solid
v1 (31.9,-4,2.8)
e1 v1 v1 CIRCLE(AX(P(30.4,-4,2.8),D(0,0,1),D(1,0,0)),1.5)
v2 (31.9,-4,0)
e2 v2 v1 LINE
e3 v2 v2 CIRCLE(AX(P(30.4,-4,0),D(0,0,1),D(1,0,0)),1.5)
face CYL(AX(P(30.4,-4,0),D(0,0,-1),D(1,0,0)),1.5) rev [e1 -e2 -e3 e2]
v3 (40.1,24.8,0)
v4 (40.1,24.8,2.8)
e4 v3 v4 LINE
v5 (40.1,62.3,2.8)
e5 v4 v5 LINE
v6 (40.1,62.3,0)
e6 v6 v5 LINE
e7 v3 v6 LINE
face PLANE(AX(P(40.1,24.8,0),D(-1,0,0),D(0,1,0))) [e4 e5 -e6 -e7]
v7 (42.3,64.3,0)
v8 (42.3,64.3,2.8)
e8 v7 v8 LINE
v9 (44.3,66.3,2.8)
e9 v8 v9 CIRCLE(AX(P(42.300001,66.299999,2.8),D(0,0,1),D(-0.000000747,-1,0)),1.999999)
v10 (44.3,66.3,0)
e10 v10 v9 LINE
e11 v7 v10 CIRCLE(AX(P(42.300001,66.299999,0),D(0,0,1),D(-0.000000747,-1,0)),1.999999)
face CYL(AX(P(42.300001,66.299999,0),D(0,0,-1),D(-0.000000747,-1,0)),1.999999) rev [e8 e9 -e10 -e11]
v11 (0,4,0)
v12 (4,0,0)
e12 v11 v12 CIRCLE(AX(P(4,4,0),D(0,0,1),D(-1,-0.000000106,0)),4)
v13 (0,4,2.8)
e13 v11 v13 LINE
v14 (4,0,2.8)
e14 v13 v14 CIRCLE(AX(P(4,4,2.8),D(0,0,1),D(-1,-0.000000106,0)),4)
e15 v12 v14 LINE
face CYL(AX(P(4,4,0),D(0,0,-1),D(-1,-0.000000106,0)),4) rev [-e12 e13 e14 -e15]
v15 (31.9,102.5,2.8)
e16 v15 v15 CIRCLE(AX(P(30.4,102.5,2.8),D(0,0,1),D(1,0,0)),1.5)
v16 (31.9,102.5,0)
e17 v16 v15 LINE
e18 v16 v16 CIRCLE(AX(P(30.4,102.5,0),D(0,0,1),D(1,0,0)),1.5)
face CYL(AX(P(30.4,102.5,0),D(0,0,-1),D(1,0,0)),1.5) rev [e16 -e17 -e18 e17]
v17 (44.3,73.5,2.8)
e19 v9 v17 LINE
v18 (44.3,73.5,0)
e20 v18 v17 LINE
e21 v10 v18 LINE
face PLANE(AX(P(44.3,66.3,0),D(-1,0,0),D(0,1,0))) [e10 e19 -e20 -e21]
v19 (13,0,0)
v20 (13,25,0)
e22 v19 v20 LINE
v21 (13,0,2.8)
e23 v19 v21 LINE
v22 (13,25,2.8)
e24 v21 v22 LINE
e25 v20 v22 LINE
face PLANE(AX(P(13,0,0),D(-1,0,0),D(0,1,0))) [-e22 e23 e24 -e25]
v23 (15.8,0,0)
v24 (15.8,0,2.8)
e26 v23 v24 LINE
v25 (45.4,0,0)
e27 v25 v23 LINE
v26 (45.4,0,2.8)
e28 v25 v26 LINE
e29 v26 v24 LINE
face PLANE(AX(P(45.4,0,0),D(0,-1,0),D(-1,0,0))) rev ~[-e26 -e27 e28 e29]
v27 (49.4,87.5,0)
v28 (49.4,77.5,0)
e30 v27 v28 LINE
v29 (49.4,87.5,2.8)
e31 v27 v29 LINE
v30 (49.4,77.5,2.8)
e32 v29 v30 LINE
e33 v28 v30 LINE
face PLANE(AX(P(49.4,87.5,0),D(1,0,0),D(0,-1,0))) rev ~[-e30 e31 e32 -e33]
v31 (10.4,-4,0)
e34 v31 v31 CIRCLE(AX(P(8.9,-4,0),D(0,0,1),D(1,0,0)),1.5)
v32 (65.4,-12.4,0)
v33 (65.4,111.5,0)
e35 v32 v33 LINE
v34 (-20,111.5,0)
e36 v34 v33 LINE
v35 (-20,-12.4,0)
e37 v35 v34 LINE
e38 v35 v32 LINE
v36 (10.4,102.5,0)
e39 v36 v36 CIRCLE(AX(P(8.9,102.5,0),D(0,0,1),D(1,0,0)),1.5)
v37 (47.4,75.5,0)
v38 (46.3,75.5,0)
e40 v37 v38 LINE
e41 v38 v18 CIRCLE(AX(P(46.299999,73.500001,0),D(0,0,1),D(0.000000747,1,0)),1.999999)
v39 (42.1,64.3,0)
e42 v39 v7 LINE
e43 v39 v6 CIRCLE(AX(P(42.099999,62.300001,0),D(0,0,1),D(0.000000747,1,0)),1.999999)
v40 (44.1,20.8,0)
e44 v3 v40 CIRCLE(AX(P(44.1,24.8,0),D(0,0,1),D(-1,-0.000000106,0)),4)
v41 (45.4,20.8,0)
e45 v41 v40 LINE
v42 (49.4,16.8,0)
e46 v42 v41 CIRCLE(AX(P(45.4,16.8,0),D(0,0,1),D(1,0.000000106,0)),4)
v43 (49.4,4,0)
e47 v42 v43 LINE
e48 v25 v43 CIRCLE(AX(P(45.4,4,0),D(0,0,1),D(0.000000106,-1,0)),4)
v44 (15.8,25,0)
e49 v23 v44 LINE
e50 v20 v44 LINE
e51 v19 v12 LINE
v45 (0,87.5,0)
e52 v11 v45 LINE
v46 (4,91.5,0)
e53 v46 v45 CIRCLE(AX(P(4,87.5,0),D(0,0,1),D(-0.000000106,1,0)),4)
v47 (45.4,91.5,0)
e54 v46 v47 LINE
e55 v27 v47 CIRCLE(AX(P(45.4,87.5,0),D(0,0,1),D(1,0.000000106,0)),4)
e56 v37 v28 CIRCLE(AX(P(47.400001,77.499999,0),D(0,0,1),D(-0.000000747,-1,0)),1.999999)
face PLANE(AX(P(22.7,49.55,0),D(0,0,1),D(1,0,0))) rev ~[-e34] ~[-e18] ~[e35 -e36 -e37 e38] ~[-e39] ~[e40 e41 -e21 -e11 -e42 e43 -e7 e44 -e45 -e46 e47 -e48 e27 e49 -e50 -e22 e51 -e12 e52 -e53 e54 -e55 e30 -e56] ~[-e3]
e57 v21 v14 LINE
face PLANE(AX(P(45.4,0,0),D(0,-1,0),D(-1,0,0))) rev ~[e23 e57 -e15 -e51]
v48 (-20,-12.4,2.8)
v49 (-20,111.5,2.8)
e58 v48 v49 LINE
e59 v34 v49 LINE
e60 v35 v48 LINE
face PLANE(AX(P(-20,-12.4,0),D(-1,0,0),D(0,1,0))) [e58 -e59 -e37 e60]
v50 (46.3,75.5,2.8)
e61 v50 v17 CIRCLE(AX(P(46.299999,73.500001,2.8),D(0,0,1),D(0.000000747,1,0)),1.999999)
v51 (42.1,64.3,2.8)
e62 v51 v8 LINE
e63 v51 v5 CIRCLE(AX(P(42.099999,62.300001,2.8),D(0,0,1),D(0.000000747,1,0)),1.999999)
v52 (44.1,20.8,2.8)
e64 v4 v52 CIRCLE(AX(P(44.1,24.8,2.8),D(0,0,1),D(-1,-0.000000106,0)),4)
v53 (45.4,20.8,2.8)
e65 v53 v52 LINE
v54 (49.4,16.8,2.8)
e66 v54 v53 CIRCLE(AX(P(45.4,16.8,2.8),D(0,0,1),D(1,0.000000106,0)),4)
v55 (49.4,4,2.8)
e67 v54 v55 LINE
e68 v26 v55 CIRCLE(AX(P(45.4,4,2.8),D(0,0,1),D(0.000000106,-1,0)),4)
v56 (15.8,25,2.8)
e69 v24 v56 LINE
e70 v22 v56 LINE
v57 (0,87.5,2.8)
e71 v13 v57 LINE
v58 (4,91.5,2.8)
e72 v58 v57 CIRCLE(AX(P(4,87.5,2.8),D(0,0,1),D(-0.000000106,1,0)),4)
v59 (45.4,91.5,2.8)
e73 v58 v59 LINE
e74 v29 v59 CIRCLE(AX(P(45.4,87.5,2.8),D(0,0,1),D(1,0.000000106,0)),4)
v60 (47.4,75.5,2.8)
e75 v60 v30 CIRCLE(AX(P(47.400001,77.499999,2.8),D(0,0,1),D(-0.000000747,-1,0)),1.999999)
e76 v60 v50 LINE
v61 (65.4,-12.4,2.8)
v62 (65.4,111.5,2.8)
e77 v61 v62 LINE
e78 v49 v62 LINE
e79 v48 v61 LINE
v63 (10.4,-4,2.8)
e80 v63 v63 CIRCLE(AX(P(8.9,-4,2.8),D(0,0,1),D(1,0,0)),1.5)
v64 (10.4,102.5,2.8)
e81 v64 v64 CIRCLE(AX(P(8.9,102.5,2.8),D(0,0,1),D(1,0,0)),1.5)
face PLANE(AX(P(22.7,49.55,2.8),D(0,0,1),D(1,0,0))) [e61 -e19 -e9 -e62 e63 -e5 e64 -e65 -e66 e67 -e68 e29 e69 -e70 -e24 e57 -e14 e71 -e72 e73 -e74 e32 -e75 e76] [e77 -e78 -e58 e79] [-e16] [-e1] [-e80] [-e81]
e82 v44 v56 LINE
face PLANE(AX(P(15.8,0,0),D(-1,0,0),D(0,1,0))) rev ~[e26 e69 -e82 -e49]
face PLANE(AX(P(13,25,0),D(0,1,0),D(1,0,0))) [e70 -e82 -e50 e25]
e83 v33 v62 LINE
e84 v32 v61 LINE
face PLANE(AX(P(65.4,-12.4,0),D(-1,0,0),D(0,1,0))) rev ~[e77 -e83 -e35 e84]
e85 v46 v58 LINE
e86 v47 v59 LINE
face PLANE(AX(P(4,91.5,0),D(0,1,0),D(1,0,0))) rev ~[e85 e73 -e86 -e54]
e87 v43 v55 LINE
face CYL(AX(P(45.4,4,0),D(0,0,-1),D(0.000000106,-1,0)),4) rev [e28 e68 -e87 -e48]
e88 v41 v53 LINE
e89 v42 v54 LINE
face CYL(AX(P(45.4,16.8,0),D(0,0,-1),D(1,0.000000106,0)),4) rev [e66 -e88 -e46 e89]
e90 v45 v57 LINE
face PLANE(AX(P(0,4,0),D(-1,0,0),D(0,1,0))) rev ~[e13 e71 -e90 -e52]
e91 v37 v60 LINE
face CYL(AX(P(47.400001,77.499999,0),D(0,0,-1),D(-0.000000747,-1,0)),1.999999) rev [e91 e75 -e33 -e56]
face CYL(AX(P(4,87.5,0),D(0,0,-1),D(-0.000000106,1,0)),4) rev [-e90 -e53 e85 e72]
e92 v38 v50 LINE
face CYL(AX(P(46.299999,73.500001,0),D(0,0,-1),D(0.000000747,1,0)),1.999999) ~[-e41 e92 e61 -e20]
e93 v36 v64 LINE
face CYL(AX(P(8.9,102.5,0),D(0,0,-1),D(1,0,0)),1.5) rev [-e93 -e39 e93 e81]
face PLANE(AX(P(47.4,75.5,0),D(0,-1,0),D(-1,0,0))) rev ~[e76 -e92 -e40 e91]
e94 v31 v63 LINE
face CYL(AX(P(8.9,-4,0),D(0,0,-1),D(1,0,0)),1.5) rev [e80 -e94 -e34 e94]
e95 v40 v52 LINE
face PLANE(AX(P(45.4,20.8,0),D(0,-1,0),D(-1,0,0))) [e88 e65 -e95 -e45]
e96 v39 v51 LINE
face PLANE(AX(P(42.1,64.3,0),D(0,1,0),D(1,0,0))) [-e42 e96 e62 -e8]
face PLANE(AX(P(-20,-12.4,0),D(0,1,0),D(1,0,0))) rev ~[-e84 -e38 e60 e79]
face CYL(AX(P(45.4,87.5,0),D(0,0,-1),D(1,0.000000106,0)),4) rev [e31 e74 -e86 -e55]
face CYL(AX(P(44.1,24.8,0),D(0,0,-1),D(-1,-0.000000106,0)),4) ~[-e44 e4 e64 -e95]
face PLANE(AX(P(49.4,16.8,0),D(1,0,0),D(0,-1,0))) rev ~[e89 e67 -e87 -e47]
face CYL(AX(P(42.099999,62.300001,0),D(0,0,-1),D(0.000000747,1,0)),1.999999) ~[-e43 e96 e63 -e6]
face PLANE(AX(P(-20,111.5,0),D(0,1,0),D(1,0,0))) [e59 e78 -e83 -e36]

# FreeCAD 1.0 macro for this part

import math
import FreeCAD as App
import Part
import Sketcher

V = App.Vector
Q = App.Units.Quantity


def add_polygon(sketch, points):
    """Adds a closed chain of lines whose ends are joined by coincident constraints."""
    first, n = sketch.GeometryCount, len(points)
    for a, b in zip(points, points[1:] + points[:1]):
        sketch.addGeometry(Part.LineSegment(App.Vector(*a, 0), App.Vector(*b, 0)), False)
    for i in range(n):
        sketch.addConstraint(Sketcher.Constraint("Coincident", first + i, 2, first + (i + 1) % n, 1))

doc = App.newDocument("Part")
body = doc.addObject("PartDesign::Body", "Body")

sketch1 = body.newObject("Sketcher::SketchObject", "Sketch")
sketch1.AttachmentSupport = (doc.getObject("XY_Plane"), [""])
sketch1.MapMode = "FlatFace"
add_polygon(sketch1, [(-20, 111.5), (-20, -12.4), (65.4, -12.4), (65.4, 111.5)])
sketch1.addGeometry(Part.Circle(V(8.9, -4, 0), V(0, 0, 1), 1.5), False)
sketch1.addGeometry(Part.Circle(V(30.4, -4, 0), V(0, 0, 1), 1.5), False)
sketch1.addGeometry(Part.ArcOfCircle(Part.Circle(V(4, 87.5, 0), V(0, 0, 1), 4), math.radians(90), math.radians(180)), False)
sketch1.addGeometry(Part.LineSegment(V(4, 91.5, 0), V(45.4, 91.5, 0)), False)
sketch1.addGeometry(Part.ArcOfCircle(Part.Circle(V(45.4, 87.5, 0), V(0, 0, 1), 4), math.radians(0), math.radians(90)), False)
sketch1.addGeometry(Part.LineSegment(V(49.4, 87.5, 0), V(49.4, 77.5, 0)), False)
sketch1.addGeometry(Part.ArcOfCircle(Part.Circle(V(47.4, 77.5, 0), V(0, 0, 1), 2), math.radians(-90), math.radians(0)), False)
sketch1.addGeometry(Part.LineSegment(V(47.4, 75.5, 0), V(46.3, 75.5, 0)), False)
sketch1.addGeometry(Part.ArcOfCircle(Part.Circle(V(46.3, 73.5, 0), V(0, 0, 1), 2), math.radians(90), math.radians(180)), False)
sketch1.addGeometry(Part.LineSegment(V(44.3, 73.5, 0), V(44.3, 66.3, 0)), False)
sketch1.addGeometry(Part.ArcOfCircle(Part.Circle(V(42.3, 66.3, 0), V(0, 0, 1), 2), math.radians(-90), math.radians(0)), False)
sketch1.addGeometry(Part.LineSegment(V(42.3, 64.3, 0), V(42.1, 64.3, 0)), False)
sketch1.addGeometry(Part.ArcOfCircle(Part.Circle(V(42.1, 62.3, 0), V(0, 0, 1), 2), math.radians(90), math.radians(180)), False)
sketch1.addGeometry(Part.LineSegment(V(40.1, 62.3, 0), V(40.1, 24.8, 0)), False)
sketch1.addGeometry(Part.ArcOfCircle(Part.Circle(V(44.1, 24.8, 0), V(0, 0, 1), 4), math.radians(-180), math.radians(-90)), False)
sketch1.addGeometry(Part.LineSegment(V(44.1, 20.8, 0), V(45.4, 20.8, 0)), False)
sketch1.addGeometry(Part.ArcOfCircle(Part.Circle(V(45.4, 16.8, 0), V(0, 0, 1), 4), math.radians(0), math.radians(90)), False)
sketch1.addGeometry(Part.LineSegment(V(49.4, 16.8, 0), V(49.4, 4, 0)), False)
sketch1.addGeometry(Part.ArcOfCircle(Part.Circle(V(45.4, 4, 0), V(0, 0, 1), 4), math.radians(-90), math.radians(0)), False)
sketch1.addGeometry(Part.LineSegment(V(45.4, 0, 0), V(4, 0, 0)), False)
sketch1.addGeometry(Part.ArcOfCircle(Part.Circle(V(4, 4, 0), V(0, 0, 1), 4), math.radians(-180), math.radians(-90)), False)
sketch1.addGeometry(Part.LineSegment(V(0, 4, 0), V(0, 87.5, 0)), False)
sketch1.addGeometry(Part.Circle(V(8.9, 102.5, 0), V(0, 0, 1), 1.5), False)
sketch1.addGeometry(Part.Circle(V(30.4, 102.5, 0), V(0, 0, 1), 1.5), False)
sketch1.addConstraint(Sketcher.Constraint("Tangent", 6, 1, 7, 1))
sketch1.addConstraint(Sketcher.Constraint("Tangent", 7, 2, 8, 2))
sketch1.addConstraint(Sketcher.Constraint("Tangent", 8, 1, 9, 1))
sketch1.addConstraint(Sketcher.Constraint("Tangent", 9, 2, 10, 2))
sketch1.addConstraint(Sketcher.Constraint("Tangent", 10, 1, 11, 1))
sketch1.addConstraint(Sketcher.Constraint("Tangent", 11, 2, 12, 1))
sketch1.addConstraint(Sketcher.Constraint("Tangent", 12, 2, 13, 1))
sketch1.addConstraint(Sketcher.Constraint("Tangent", 13, 2, 14, 2))
sketch1.addConstraint(Sketcher.Constraint("Tangent", 14, 1, 15, 1))
sketch1.addConstraint(Sketcher.Constraint("Tangent", 15, 2, 16, 1))
sketch1.addConstraint(Sketcher.Constraint("Tangent", 16, 2, 17, 1))
sketch1.addConstraint(Sketcher.Constraint("Tangent", 17, 2, 18, 1))
sketch1.addConstraint(Sketcher.Constraint("Tangent", 18, 2, 19, 1))
sketch1.addConstraint(Sketcher.Constraint("Tangent", 19, 2, 20, 2))
sketch1.addConstraint(Sketcher.Constraint("Tangent", 20, 1, 21, 1))
sketch1.addConstraint(Sketcher.Constraint("Tangent", 21, 2, 22, 2))
sketch1.addConstraint(Sketcher.Constraint("Tangent", 22, 1, 23, 1))
sketch1.addConstraint(Sketcher.Constraint("Tangent", 23, 2, 24, 2))
sketch1.addConstraint(Sketcher.Constraint("Tangent", 24, 1, 25, 1))
sketch1.addConstraint(Sketcher.Constraint("Tangent", 25, 2, 6, 2))
sketch1.addConstraint(Sketcher.Constraint("Vertical", 0))
sketch1.addConstraint(Sketcher.Constraint("Horizontal", 1))
sketch1.addConstraint(Sketcher.Constraint("Vertical", 2))
sketch1.addConstraint(Sketcher.Constraint("Horizontal", 3))
sketch1.addConstraint(Sketcher.Constraint("Horizontal", 7))
sketch1.addConstraint(Sketcher.Constraint("Vertical", 9))
sketch1.addConstraint(Sketcher.Constraint("Horizontal", 11))
sketch1.addConstraint(Sketcher.Constraint("Vertical", 13))
sketch1.addConstraint(Sketcher.Constraint("Horizontal", 15))
sketch1.addConstraint(Sketcher.Constraint("Vertical", 17))
sketch1.addConstraint(Sketcher.Constraint("Horizontal", 19))
sketch1.addConstraint(Sketcher.Constraint("Vertical", 21))
sketch1.addConstraint(Sketcher.Constraint("Horizontal", 23))
sketch1.addConstraint(Sketcher.Constraint("Vertical", 25))
sketch1.addConstraint(Sketcher.Constraint("Equal", 4, 5))
sketch1.addConstraint(Sketcher.Constraint("Equal", 6, 8))
sketch1.addConstraint(Sketcher.Constraint("Equal", 10, 12))
sketch1.addConstraint(Sketcher.Constraint("Equal", 12, 14))
sketch1.addConstraint(Sketcher.Constraint("Equal", 14, 16))
sketch1.addConstraint(Sketcher.Constraint("Equal", 8, 18))
sketch1.addConstraint(Sketcher.Constraint("Equal", 18, 20))
sketch1.addConstraint(Sketcher.Constraint("Equal", 20, 22))
sketch1.addConstraint(Sketcher.Constraint("Equal", 22, 24))
sketch1.addConstraint(Sketcher.Constraint("Equal", 5, 26))
sketch1.addConstraint(Sketcher.Constraint("Equal", 26, 27))
sketch1.addConstraint(Sketcher.Constraint("PointOnObject", 22, 1, -1))
sketch1.addConstraint(Sketcher.Constraint("PointOnObject", 24, 1, -2))
sketch1.addConstraint(Sketcher.Constraint("Horizontal", 4, 3, 5, 3))
sketch1.addConstraint(Sketcher.Constraint("Horizontal", 26, 3, 27, 3))
sketch1.addConstraint(Sketcher.Constraint("Vertical", 8, 3, 20, 3))
sketch1.addConstraint(Sketcher.Constraint("Vertical", 4, 3, 26, 3))
sketch1.addConstraint(Sketcher.Constraint("Vertical", 5, 3, 27, 3))
sketch1.addConstraint(Sketcher.Constraint("Diameter", 4, Q("3 mm")))
sketch1.addConstraint(Sketcher.Constraint("Radius", 6, Q("4 mm")))
sketch1.addConstraint(Sketcher.Constraint("Radius", 10, Q("1.999999 mm")))
sketch1.addConstraint(Sketcher.Constraint("DistanceY", 9, 2, 9, 1, Q("10 mm")))
sketch1.addConstraint(Sketcher.Constraint("DistanceX", 1, 1, 1, 2, Q("85.4 mm")))
sketch1.addConstraint(Sketcher.Constraint("DistanceX", 7, 1, 7, 2, Q("41.4 mm")))
sketch1.addConstraint(Sketcher.Constraint("DistanceX", 11, 2, 11, 1, Q("1.1 mm")))
sketch1.addConstraint(Sketcher.Constraint("DistanceX", 15, 2, 15, 1, Q("0.2 mm")))
sketch1.addConstraint(Sketcher.Constraint("DistanceY", 0, 2, 0, 1, Q("123.9 mm")))
sketch1.addConstraint(Sketcher.Constraint("DistanceY", 13, 2, 13, 1, Q("7.2 mm")))
sketch1.addConstraint(Sketcher.Constraint("DistanceY", 17, 2, 17, 1, Q("37.5 mm")))
sketch1.addConstraint(Sketcher.Constraint("DistanceY", 21, 2, 21, 1, Q("12.8 mm")))
sketch1.addConstraint(Sketcher.Constraint("DistanceY", 4, 3, -1, 1, Q("4 mm")))
sketch1.addConstraint(Sketcher.Constraint("DistanceX", 0, 2, -1, 1, Q("20 mm")))
sketch1.addConstraint(Sketcher.Constraint("DistanceX", 5, 3, 8, 3, Q("15 mm")))
sketch1.addConstraint(Sketcher.Constraint("DistanceY", 6, 3, 26, 3, Q("15 mm")))
sketch1.addConstraint(Sketcher.Constraint("DistanceY", 8, 3, 2, 2, Q("24 mm")))
sketch1.addConstraint(Sketcher.Constraint("DistanceX", -1, 1, 4, 3, Q("8.9 mm")))
pad1 = body.newObject("PartDesign::Pad", "Pad")
pad1.Profile = sketch1
pad1.Length = 2.8

sketch2 = body.newObject("Sketcher::SketchObject", "Sketch001")
sketch2.AttachmentSupport = (doc.getObject("XY_Plane"), [""])
sketch2.MapMode = "FlatFace"
add_polygon(sketch2, [(13, 25), (13, 0), (15.8, 0), (15.8, 25)])
sketch2.addConstraint(Sketcher.Constraint("Vertical", 0))
sketch2.addConstraint(Sketcher.Constraint("Horizontal", 1))
sketch2.addConstraint(Sketcher.Constraint("Vertical", 2))
sketch2.addConstraint(Sketcher.Constraint("Horizontal", 3))
sketch2.addConstraint(Sketcher.Constraint("PointOnObject", 0, 2, -1))
sketch2.addConstraint(Sketcher.Constraint("DistanceY", 0, 2, 0, 1, Q("25 mm")))
sketch2.addConstraint(Sketcher.Constraint("DistanceX", 1, 1, 1, 2, Q("2.8 mm")))
sketch2.addConstraint(Sketcher.Constraint("DistanceX", -1, 1, 0, 2, Q("13 mm")))
pad2 = body.newObject("PartDesign::Pad", "Pad001")
pad2.Profile = sketch2
pad2.Length = 2.8

doc.recompute()
